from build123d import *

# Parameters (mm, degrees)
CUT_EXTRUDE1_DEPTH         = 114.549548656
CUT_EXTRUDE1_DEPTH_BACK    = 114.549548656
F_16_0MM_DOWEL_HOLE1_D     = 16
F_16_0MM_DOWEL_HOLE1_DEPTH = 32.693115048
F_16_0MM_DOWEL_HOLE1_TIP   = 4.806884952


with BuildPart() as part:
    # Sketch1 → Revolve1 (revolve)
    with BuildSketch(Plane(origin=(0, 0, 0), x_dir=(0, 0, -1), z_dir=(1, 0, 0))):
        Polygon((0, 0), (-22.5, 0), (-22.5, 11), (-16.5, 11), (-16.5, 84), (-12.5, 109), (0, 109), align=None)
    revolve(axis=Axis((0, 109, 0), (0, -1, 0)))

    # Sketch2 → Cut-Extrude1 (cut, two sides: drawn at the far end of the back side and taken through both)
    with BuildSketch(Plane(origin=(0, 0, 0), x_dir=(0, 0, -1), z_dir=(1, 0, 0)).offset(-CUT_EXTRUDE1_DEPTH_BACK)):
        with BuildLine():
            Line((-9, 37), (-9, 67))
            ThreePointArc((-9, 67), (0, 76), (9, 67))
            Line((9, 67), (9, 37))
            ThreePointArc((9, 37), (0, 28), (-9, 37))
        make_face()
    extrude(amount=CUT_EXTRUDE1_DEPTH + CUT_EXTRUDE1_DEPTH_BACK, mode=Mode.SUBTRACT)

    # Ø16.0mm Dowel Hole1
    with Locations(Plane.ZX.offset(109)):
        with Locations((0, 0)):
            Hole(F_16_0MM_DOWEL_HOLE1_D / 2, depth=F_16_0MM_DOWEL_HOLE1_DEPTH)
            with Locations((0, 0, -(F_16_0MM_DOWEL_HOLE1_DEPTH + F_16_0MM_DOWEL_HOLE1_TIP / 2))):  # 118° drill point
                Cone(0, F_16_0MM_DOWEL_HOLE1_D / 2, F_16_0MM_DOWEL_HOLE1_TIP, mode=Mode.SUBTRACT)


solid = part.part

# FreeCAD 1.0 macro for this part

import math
import FreeCAD as App
import Part
import Sketcher

V = App.Vector

doc = App.newDocument("Part")
body = doc.addObject("PartDesign::Body", "Body")

# Sketch on YZ plane
sketch1 = body.newObject("Sketcher::SketchObject", "Sketch")
sketch1.AttachmentSupport = (doc.getObject("YZ_Plane"), [""])
sketch1.MapMode = "FlatFace"
sketch1.addGeometry(Part.LineSegment(V(0, 22, 0), V(0, 0, 0)), False)
sketch1.addGeometry(Part.LineSegment(V(0, 0, 0), V(109, 0, 0)), False)
sketch1.addGeometry(Part.LineSegment(V(109, 0, 0), V(109, 12, 0)), False)
sketch1.addGeometry(Part.LineSegment(V(109, 12, 0), V(84, 16, 0)), False)
sketch1.addGeometry(Part.LineSegment(V(84, 16, 0), V(11, 16, 0)), False)
sketch1.addGeometry(Part.LineSegment(V(11, 16, 0), V(11, 22, 0)), False)
sketch1.addGeometry(Part.LineSegment(V(11, 22, 0), V(0, 22, 0)), False)
sketch1.addConstraint(Sketcher.Constraint("Coincident", 0, 2, 1, 1))
sketch1.addConstraint(Sketcher.Constraint("Coincident", 1, 2, 2, 1))
sketch1.addConstraint(Sketcher.Constraint("Coincident", 2, 2, 3, 1))
sketch1.addConstraint(Sketcher.Constraint("Coincident", 3, 2, 4, 1))
sketch1.addConstraint(Sketcher.Constraint("Coincident", 4, 2, 5, 1))
sketch1.addConstraint(Sketcher.Constraint("Coincident", 5, 2, 6, 1))
sketch1.addConstraint(Sketcher.Constraint("Coincident", 6, 2, 0, 1))
sketch1.addConstraint(Sketcher.Constraint("Vertical", 0))
sketch1.addConstraint(Sketcher.Constraint("Horizontal", 1))
sketch1.addConstraint(Sketcher.Constraint("Vertical", 2))
sketch1.addConstraint(Sketcher.Constraint("Horizontal", 4))
sketch1.addConstraint(Sketcher.Constraint("Vertical", 5))
sketch1.addConstraint(Sketcher.Constraint("Horizontal", 6))
sketch1.addConstraint(Sketcher.Constraint("Coincident", 0, 2, -1, 1))
sketch1.addConstraint(Sketcher.Constraint("DistanceX", 1, 1, 1, 2, 109.0))
sketch1.addConstraint(Sketcher.Constraint("DistanceX", 4, 2, 4, 1, 73.0))
sketch1.addConstraint(Sketcher.Constraint("DistanceX", 6, 2, 6, 1, 11.0))
sketch1.addConstraint(Sketcher.Constraint("DistanceY", 5, 1, 5, 2, 6.0))
sketch1.addConstraint(Sketcher.Constraint("DistanceY", 0, 2, 0, 1, 22.5))
sketch1.addConstraint(Sketcher.Constraint("DistanceY", 2, 1, 2, 2, 12.5))
revolution = body.newObject("PartDesign::Revolution", "Revolution")
revolution.Profile = sketch1
revolution.ReferenceAxis = (sketch1, ["H_Axis"])
revolution.Angle = 360

# Sketch on YZ plane
sketch2 = body.newObject("Sketcher::SketchObject", "Sketch001")
sketch2.AttachmentSupport = (doc.getObject("YZ_Plane"), [""])
sketch2.MapMode = "FlatFace"
sketch2.addGeometry(Part.LineSegment(V(67, 9, 0), V(37, 9, 0)), False)
sketch2.addGeometry(Part.ArcOfCircle(Part.Circle(V(37, 0, 0), V(0, 0, 1), 9), math.radians(90), math.radians(270)), False)
sketch2.addGeometry(Part.LineSegment(V(37, -9, 0), V(67, -9, 0)), False)
sketch2.addGeometry(Part.ArcOfCircle(Part.Circle(V(67, 0, 0), V(0, 0, 1), 9), math.radians(-90), math.radians(90)), False)
sketch2.addConstraint(Sketcher.Constraint("Tangent", 0, 2, 1, 1))
sketch2.addConstraint(Sketcher.Constraint("Tangent", 1, 2, 2, 1))
sketch2.addConstraint(Sketcher.Constraint("Tangent", 2, 2, 3, 1))
sketch2.addConstraint(Sketcher.Constraint("Tangent", 3, 2, 0, 1))
sketch2.addConstraint(Sketcher.Constraint("Horizontal", 0))
sketch2.addConstraint(Sketcher.Constraint("Horizontal", 2))
sketch2.addConstraint(Sketcher.Constraint("PointOnObject", 1, 3, -1))
sketch2.addConstraint(Sketcher.Constraint("Radius", 1, 9.0))
sketch2.addConstraint(Sketcher.Constraint("DistanceX", 0, 2, 0, 1, 30.0))
sketch2.addConstraint(Sketcher.Constraint("DistanceX", -1, 1, 1, 3, 37.0))
pocket1 = body.newObject("PartDesign::Pocket", "Pocket")
pocket1.Profile = sketch2
pocket1.Type = "ThroughAll"
pocket1.Midplane = True

# Sketch on XZ plane
sketch3 = body.newObject("Sketcher::SketchObject", "Sketch002")
sketch3.AttachmentSupport = (doc.getObject("XZ_Plane"), [""])
sketch3.MapMode = "FlatFace"
sketch3.AttachmentOffset = App.Placement(V(0, 0, -109), App.Rotation())
sketch3.addGeometry(Part.Circle(V(0, 0, 0), V(0, 0, 1), 8), False)
sketch3.addConstraint(Sketcher.Constraint("Coincident", 0, 3, -1, 1))
sketch3.addConstraint(Sketcher.Constraint("Diameter", 0, 16.0))
doc.recompute()
hole = body.newObject("PartDesign::Hole", "Hole")
hole.Profile = sketch3
hole.ThreadType = "None"
hole.Diameter = 16
hole.DepthType = "Dimension"
hole.Depth = 32.693115
hole.DrillPoint = "Angled"
hole.DrillPointAngle = 118
hole.Reversed = True

doc.recompute()
